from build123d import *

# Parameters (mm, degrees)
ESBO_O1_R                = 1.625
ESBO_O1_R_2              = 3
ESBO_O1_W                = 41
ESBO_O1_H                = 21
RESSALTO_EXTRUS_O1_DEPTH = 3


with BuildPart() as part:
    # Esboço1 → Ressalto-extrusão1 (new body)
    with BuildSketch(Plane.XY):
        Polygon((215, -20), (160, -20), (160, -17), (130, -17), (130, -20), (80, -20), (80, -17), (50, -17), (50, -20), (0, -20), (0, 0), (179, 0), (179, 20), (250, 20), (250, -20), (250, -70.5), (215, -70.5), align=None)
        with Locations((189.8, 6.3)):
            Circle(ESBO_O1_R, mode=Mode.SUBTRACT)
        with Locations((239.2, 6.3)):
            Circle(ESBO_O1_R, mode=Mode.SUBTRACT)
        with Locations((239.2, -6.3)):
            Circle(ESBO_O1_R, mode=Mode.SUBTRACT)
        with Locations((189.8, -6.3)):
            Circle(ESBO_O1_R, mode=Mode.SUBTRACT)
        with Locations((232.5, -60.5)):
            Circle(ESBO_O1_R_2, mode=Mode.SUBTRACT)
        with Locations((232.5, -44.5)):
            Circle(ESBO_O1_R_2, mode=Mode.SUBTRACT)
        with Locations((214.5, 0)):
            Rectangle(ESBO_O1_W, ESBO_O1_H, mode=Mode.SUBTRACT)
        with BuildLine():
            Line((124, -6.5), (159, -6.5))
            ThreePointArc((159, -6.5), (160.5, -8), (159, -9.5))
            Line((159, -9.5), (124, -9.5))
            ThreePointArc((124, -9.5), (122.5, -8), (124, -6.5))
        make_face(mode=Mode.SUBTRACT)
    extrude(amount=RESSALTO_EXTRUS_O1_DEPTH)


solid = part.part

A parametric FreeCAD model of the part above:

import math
import FreeCAD as App
import Part
import Sketcher

V = App.Vector
Q = App.Units.Quantity

doc = App.newDocument("Part")
body = doc.addObject("PartDesign::Body", "Body")

# Sketch on XY plane
sketch1 = body.newObject("Sketcher::SketchObject", "Sketch")
sketch1.AttachmentSupport = (doc.getObject("XY_Plane"), [""])
sketch1.MapMode = "FlatFace"
sketch1.addGeometry([
    Part.LineSegment(V(160, -20, 0), V(215, -20, 0)),  # 0
    Part.LineSegment(V(215, -20, 0), V(215, -70.5, 0)),  # 1
    Part.LineSegment(V(215, -70.5, 0), V(250, -70.5, 0)),  # 2
    Part.LineSegment(V(250, -70.5, 0), V(250, 20, 0)),  # 3
    Part.LineSegment(V(250, 20, 0), V(179, 20, 0)),  # 4
    Part.LineSegment(V(179, 20, 0), V(179, 0, 0)),  # 5
    Part.LineSegment(V(179, 0, 0), V(0, 0, 0)),  # 6
    Part.LineSegment(V(0, 0, 0), V(0, -20, 0)),  # 7
    Part.LineSegment(V(0, -20, 0), V(50, -20, 0)),  # 8
    Part.LineSegment(V(50, -20, 0), V(50, -17, 0)),  # 9
    Part.LineSegment(V(50, -17, 0), V(80, -17, 0)),  # 10
    Part.LineSegment(V(80, -17, 0), V(80, -20, 0)),  # 11
    Part.LineSegment(V(80, -20, 0), V(130, -20, 0)),  # 12
    Part.LineSegment(V(130, -20, 0), V(130, -17, 0)),  # 13
    Part.LineSegment(V(130, -17, 0), V(160, -17, 0)),  # 14
    Part.LineSegment(V(160, -17, 0), V(160, -20, 0)),  # 15
    Part.Circle(V(232.5, -60.5, 0), V(0, 0, 1), 3),  # 16
    Part.Circle(V(232.5, -44.5, 0), V(0, 0, 1), 3),  # 17
    Part.Circle(V(239.2, -6.3, 0), V(0, 0, 1), 1.6),  # 18
    Part.LineSegment(V(194, -10.5, 0), V(194, 10.5, 0)),  # 19
    Part.LineSegment(V(194, 10.5, 0), V(235, 10.5, 0)),  # 20
    Part.LineSegment(V(235, 10.5, 0), V(235, -10.5, 0)),  # 21
    Part.LineSegment(V(235, -10.5, 0), V(194, -10.5, 0)),  # 22
    Part.Circle(V(239.2, 6.3, 0), V(0, 0, 1), 1.6),  # 23
    Part.Circle(V(189.8, -6.3, 0), V(0, 0, 1), 1.6),  # 24
    Part.Circle(V(189.8, 6.3, 0), V(0, 0, 1), 1.6),  # 25
    Part.LineSegment(V(124, -6.5, 0), V(159, -6.5, 0)),  # 26
    Part.ArcOfCircle(Part.Circle(V(159, -8, 0), V(0, 0, 1), 1.5), math.radians(-90), math.radians(90)),  # 27
    Part.LineSegment(V(159, -9.5, 0), V(124, -9.5, 0)),  # 28
    Part.ArcOfCircle(Part.Circle(V(124, -8, 0), V(0, 0, 1), 1.5), math.radians(90), math.radians(270)),  # 29
], False)
sketch1.addConstraint([
    Sketcher.Constraint("Coincident", 0, 2, 1, 1),
    Sketcher.Constraint("Coincident", 1, 2, 2, 1),
    Sketcher.Constraint("Coincident", 2, 2, 3, 1),
    Sketcher.Constraint("Coincident", 3, 2, 4, 1),
    Sketcher.Constraint("Coincident", 4, 2, 5, 1),
    Sketcher.Constraint("Coincident", 5, 2, 6, 1),
    Sketcher.Constraint("Coincident", 6, 2, 7, 1),
    Sketcher.Constraint("Coincident", 7, 2, 8, 1),
    Sketcher.Constraint("Coincident", 8, 2, 9, 1),
    Sketcher.Constraint("Coincident", 9, 2, 10, 1),
    Sketcher.Constraint("Coincident", 10, 2, 11, 1),
    Sketcher.Constraint("Coincident", 11, 2, 12, 1),
    Sketcher.Constraint("Coincident", 12, 2, 13, 1),
    Sketcher.Constraint("Coincident", 13, 2, 14, 1),
    Sketcher.Constraint("Coincident", 14, 2, 15, 1),
    Sketcher.Constraint("Coincident", 15, 2, 0, 1),
    Sketcher.Constraint("Coincident", 19, 2, 20, 1),
    Sketcher.Constraint("Coincident", 20, 2, 21, 1),
    Sketcher.Constraint("Coincident", 21, 2, 22, 1),
    Sketcher.Constraint("Coincident", 22, 2, 19, 1),
    Sketcher.Constraint("Tangent", 26, 2, 27, 2),
    Sketcher.Constraint("Tangent", 27, 1, 28, 1),
    Sketcher.Constraint("Tangent", 28, 2, 29, 2),
    Sketcher.Constraint("Tangent", 29, 1, 26, 1),
    Sketcher.Constraint("Horizontal", 0),
    Sketcher.Constraint("Vertical", 1),
    Sketcher.Constraint("Horizontal", 2),
    Sketcher.Constraint("Vertical", 3),
    Sketcher.Constraint("Horizontal", 4),
    Sketcher.Constraint("Vertical", 5),
    Sketcher.Constraint("Horizontal", 6),
    Sketcher.Constraint("Vertical", 7),
    Sketcher.Constraint("Horizontal", 8),
    Sketcher.Constraint("Vertical", 9),
    Sketcher.Constraint("Horizontal", 10),
    Sketcher.Constraint("Vertical", 11),
    Sketcher.Constraint("Horizontal", 12),
    Sketcher.Constraint("Vertical", 13),
    Sketcher.Constraint("Horizontal", 14),
    Sketcher.Constraint("Vertical", 15),
    Sketcher.Constraint("Vertical", 19),
    Sketcher.Constraint("Horizontal", 20),
    Sketcher.Constraint("Vertical", 21),
    Sketcher.Constraint("Horizontal", 22),
    Sketcher.Constraint("Horizontal", 26),
    Sketcher.Constraint("Horizontal", 28),
    Sketcher.Constraint("Coincident", 6, 2, -1, 1),
    Sketcher.Constraint("Equal", 16, 17),
    Sketcher.Constraint("Equal", 18, 23),
    Sketcher.Constraint("Equal", 23, 24),
    Sketcher.Constraint("Equal", 24, 25),
    Sketcher.Constraint("Symmetric", 18, 3, 23, 3, -1),
    Sketcher.Constraint("Symmetric", 24, 3, 25, 3, -1),
    Sketcher.Constraint("Horizontal", 18, 3, 24, 3),
    Sketcher.Constraint("Horizontal", 0, 2, 7, 2),
    Sketcher.Constraint("Horizontal", 8, 2, 11, 2),
    Sketcher.Constraint("Horizontal", 10, 2, 13, 2),
    Sketcher.Constraint("Vertical", 16, 3, 17, 3),
    Sketcher.Constraint("Equal", 8, 12),
    Sketcher.Constraint("Equal", 10, 14),
    Sketcher.Constraint("Equal", 2, 26),
    Sketcher.Constraint("Equal", 5, 7),
    Sketcher.Constraint("Diameter", 16, Q("6 mm")),
    Sketcher.Constraint("Radius", 27, Q("1.5 mm")),
    Sketcher.Constraint("Diameter", 18, Q("3.25 mm")),
    Sketcher.Constraint("DistanceX", 0, 1, 0, 2, Q("55 mm")),
    Sketcher.Constraint("DistanceX", 2, 1, 2, 2, Q("35 mm")),
    Sketcher.Constraint("DistanceX", 4, 2, 4, 1, Q("71 mm")),
    Sketcher.Constraint("DistanceX", 6, 2, 6, 1, Q("179 mm")),
    Sketcher.Constraint("DistanceX", 8, 1, 8, 2, Q("50 mm")),
    Sketcher.Constraint("DistanceX", 20, 1, 20, 2, Q("41 mm")),
    Sketcher.Constraint("DistanceY", 5, 2, 5, 1, Q("20 mm")),
    Sketcher.Constraint("DistanceY", 9, 1, 9, 2, Q("3 mm")),
    Sketcher.Constraint("DistanceY", 19, 1, 19, 2, Q("21 mm")),
    Sketcher.Constraint("DistanceY", 1, 2, 1, 1, Q("50.5 mm")),
    Sketcher.Constraint("DistanceX", -1, 1, 27, 3, Q("159 mm")),
    Sketcher.Constraint("DistanceY", 27, 3, -1, 1, Q("8 mm")),
    Sketcher.Constraint("DistanceX", -1, 1, 19, 2, Q("194 mm")),
    Sketcher.Constraint("DistanceY", 16, 3, 17, 3, Q("16 mm")),
    Sketcher.Constraint("DistanceY", 1, 2, 16, 3, Q("10 mm")),
    Sketcher.Constraint("DistanceX", -1, 1, 16, 3, Q("232.5 mm")),
    Sketcher.Constraint("DistanceX", -1, 1, 18, 3, Q("239.2 mm")),
    Sketcher.Constraint("DistanceY", 18, 3, -1, 1, Q("6.3 mm")),
    Sketcher.Constraint("DistanceX", -1, 1, 24, 3, Q("189.8 mm")),
    Sketcher.Constraint("DistanceY", -1, 1, 19, 2, Q("10.5 mm")),
])
pad1 = body.newObject("PartDesign::Pad", "Pad")
pad1.Profile = sketch1
pad1.Length = 3

doc.recompute()
